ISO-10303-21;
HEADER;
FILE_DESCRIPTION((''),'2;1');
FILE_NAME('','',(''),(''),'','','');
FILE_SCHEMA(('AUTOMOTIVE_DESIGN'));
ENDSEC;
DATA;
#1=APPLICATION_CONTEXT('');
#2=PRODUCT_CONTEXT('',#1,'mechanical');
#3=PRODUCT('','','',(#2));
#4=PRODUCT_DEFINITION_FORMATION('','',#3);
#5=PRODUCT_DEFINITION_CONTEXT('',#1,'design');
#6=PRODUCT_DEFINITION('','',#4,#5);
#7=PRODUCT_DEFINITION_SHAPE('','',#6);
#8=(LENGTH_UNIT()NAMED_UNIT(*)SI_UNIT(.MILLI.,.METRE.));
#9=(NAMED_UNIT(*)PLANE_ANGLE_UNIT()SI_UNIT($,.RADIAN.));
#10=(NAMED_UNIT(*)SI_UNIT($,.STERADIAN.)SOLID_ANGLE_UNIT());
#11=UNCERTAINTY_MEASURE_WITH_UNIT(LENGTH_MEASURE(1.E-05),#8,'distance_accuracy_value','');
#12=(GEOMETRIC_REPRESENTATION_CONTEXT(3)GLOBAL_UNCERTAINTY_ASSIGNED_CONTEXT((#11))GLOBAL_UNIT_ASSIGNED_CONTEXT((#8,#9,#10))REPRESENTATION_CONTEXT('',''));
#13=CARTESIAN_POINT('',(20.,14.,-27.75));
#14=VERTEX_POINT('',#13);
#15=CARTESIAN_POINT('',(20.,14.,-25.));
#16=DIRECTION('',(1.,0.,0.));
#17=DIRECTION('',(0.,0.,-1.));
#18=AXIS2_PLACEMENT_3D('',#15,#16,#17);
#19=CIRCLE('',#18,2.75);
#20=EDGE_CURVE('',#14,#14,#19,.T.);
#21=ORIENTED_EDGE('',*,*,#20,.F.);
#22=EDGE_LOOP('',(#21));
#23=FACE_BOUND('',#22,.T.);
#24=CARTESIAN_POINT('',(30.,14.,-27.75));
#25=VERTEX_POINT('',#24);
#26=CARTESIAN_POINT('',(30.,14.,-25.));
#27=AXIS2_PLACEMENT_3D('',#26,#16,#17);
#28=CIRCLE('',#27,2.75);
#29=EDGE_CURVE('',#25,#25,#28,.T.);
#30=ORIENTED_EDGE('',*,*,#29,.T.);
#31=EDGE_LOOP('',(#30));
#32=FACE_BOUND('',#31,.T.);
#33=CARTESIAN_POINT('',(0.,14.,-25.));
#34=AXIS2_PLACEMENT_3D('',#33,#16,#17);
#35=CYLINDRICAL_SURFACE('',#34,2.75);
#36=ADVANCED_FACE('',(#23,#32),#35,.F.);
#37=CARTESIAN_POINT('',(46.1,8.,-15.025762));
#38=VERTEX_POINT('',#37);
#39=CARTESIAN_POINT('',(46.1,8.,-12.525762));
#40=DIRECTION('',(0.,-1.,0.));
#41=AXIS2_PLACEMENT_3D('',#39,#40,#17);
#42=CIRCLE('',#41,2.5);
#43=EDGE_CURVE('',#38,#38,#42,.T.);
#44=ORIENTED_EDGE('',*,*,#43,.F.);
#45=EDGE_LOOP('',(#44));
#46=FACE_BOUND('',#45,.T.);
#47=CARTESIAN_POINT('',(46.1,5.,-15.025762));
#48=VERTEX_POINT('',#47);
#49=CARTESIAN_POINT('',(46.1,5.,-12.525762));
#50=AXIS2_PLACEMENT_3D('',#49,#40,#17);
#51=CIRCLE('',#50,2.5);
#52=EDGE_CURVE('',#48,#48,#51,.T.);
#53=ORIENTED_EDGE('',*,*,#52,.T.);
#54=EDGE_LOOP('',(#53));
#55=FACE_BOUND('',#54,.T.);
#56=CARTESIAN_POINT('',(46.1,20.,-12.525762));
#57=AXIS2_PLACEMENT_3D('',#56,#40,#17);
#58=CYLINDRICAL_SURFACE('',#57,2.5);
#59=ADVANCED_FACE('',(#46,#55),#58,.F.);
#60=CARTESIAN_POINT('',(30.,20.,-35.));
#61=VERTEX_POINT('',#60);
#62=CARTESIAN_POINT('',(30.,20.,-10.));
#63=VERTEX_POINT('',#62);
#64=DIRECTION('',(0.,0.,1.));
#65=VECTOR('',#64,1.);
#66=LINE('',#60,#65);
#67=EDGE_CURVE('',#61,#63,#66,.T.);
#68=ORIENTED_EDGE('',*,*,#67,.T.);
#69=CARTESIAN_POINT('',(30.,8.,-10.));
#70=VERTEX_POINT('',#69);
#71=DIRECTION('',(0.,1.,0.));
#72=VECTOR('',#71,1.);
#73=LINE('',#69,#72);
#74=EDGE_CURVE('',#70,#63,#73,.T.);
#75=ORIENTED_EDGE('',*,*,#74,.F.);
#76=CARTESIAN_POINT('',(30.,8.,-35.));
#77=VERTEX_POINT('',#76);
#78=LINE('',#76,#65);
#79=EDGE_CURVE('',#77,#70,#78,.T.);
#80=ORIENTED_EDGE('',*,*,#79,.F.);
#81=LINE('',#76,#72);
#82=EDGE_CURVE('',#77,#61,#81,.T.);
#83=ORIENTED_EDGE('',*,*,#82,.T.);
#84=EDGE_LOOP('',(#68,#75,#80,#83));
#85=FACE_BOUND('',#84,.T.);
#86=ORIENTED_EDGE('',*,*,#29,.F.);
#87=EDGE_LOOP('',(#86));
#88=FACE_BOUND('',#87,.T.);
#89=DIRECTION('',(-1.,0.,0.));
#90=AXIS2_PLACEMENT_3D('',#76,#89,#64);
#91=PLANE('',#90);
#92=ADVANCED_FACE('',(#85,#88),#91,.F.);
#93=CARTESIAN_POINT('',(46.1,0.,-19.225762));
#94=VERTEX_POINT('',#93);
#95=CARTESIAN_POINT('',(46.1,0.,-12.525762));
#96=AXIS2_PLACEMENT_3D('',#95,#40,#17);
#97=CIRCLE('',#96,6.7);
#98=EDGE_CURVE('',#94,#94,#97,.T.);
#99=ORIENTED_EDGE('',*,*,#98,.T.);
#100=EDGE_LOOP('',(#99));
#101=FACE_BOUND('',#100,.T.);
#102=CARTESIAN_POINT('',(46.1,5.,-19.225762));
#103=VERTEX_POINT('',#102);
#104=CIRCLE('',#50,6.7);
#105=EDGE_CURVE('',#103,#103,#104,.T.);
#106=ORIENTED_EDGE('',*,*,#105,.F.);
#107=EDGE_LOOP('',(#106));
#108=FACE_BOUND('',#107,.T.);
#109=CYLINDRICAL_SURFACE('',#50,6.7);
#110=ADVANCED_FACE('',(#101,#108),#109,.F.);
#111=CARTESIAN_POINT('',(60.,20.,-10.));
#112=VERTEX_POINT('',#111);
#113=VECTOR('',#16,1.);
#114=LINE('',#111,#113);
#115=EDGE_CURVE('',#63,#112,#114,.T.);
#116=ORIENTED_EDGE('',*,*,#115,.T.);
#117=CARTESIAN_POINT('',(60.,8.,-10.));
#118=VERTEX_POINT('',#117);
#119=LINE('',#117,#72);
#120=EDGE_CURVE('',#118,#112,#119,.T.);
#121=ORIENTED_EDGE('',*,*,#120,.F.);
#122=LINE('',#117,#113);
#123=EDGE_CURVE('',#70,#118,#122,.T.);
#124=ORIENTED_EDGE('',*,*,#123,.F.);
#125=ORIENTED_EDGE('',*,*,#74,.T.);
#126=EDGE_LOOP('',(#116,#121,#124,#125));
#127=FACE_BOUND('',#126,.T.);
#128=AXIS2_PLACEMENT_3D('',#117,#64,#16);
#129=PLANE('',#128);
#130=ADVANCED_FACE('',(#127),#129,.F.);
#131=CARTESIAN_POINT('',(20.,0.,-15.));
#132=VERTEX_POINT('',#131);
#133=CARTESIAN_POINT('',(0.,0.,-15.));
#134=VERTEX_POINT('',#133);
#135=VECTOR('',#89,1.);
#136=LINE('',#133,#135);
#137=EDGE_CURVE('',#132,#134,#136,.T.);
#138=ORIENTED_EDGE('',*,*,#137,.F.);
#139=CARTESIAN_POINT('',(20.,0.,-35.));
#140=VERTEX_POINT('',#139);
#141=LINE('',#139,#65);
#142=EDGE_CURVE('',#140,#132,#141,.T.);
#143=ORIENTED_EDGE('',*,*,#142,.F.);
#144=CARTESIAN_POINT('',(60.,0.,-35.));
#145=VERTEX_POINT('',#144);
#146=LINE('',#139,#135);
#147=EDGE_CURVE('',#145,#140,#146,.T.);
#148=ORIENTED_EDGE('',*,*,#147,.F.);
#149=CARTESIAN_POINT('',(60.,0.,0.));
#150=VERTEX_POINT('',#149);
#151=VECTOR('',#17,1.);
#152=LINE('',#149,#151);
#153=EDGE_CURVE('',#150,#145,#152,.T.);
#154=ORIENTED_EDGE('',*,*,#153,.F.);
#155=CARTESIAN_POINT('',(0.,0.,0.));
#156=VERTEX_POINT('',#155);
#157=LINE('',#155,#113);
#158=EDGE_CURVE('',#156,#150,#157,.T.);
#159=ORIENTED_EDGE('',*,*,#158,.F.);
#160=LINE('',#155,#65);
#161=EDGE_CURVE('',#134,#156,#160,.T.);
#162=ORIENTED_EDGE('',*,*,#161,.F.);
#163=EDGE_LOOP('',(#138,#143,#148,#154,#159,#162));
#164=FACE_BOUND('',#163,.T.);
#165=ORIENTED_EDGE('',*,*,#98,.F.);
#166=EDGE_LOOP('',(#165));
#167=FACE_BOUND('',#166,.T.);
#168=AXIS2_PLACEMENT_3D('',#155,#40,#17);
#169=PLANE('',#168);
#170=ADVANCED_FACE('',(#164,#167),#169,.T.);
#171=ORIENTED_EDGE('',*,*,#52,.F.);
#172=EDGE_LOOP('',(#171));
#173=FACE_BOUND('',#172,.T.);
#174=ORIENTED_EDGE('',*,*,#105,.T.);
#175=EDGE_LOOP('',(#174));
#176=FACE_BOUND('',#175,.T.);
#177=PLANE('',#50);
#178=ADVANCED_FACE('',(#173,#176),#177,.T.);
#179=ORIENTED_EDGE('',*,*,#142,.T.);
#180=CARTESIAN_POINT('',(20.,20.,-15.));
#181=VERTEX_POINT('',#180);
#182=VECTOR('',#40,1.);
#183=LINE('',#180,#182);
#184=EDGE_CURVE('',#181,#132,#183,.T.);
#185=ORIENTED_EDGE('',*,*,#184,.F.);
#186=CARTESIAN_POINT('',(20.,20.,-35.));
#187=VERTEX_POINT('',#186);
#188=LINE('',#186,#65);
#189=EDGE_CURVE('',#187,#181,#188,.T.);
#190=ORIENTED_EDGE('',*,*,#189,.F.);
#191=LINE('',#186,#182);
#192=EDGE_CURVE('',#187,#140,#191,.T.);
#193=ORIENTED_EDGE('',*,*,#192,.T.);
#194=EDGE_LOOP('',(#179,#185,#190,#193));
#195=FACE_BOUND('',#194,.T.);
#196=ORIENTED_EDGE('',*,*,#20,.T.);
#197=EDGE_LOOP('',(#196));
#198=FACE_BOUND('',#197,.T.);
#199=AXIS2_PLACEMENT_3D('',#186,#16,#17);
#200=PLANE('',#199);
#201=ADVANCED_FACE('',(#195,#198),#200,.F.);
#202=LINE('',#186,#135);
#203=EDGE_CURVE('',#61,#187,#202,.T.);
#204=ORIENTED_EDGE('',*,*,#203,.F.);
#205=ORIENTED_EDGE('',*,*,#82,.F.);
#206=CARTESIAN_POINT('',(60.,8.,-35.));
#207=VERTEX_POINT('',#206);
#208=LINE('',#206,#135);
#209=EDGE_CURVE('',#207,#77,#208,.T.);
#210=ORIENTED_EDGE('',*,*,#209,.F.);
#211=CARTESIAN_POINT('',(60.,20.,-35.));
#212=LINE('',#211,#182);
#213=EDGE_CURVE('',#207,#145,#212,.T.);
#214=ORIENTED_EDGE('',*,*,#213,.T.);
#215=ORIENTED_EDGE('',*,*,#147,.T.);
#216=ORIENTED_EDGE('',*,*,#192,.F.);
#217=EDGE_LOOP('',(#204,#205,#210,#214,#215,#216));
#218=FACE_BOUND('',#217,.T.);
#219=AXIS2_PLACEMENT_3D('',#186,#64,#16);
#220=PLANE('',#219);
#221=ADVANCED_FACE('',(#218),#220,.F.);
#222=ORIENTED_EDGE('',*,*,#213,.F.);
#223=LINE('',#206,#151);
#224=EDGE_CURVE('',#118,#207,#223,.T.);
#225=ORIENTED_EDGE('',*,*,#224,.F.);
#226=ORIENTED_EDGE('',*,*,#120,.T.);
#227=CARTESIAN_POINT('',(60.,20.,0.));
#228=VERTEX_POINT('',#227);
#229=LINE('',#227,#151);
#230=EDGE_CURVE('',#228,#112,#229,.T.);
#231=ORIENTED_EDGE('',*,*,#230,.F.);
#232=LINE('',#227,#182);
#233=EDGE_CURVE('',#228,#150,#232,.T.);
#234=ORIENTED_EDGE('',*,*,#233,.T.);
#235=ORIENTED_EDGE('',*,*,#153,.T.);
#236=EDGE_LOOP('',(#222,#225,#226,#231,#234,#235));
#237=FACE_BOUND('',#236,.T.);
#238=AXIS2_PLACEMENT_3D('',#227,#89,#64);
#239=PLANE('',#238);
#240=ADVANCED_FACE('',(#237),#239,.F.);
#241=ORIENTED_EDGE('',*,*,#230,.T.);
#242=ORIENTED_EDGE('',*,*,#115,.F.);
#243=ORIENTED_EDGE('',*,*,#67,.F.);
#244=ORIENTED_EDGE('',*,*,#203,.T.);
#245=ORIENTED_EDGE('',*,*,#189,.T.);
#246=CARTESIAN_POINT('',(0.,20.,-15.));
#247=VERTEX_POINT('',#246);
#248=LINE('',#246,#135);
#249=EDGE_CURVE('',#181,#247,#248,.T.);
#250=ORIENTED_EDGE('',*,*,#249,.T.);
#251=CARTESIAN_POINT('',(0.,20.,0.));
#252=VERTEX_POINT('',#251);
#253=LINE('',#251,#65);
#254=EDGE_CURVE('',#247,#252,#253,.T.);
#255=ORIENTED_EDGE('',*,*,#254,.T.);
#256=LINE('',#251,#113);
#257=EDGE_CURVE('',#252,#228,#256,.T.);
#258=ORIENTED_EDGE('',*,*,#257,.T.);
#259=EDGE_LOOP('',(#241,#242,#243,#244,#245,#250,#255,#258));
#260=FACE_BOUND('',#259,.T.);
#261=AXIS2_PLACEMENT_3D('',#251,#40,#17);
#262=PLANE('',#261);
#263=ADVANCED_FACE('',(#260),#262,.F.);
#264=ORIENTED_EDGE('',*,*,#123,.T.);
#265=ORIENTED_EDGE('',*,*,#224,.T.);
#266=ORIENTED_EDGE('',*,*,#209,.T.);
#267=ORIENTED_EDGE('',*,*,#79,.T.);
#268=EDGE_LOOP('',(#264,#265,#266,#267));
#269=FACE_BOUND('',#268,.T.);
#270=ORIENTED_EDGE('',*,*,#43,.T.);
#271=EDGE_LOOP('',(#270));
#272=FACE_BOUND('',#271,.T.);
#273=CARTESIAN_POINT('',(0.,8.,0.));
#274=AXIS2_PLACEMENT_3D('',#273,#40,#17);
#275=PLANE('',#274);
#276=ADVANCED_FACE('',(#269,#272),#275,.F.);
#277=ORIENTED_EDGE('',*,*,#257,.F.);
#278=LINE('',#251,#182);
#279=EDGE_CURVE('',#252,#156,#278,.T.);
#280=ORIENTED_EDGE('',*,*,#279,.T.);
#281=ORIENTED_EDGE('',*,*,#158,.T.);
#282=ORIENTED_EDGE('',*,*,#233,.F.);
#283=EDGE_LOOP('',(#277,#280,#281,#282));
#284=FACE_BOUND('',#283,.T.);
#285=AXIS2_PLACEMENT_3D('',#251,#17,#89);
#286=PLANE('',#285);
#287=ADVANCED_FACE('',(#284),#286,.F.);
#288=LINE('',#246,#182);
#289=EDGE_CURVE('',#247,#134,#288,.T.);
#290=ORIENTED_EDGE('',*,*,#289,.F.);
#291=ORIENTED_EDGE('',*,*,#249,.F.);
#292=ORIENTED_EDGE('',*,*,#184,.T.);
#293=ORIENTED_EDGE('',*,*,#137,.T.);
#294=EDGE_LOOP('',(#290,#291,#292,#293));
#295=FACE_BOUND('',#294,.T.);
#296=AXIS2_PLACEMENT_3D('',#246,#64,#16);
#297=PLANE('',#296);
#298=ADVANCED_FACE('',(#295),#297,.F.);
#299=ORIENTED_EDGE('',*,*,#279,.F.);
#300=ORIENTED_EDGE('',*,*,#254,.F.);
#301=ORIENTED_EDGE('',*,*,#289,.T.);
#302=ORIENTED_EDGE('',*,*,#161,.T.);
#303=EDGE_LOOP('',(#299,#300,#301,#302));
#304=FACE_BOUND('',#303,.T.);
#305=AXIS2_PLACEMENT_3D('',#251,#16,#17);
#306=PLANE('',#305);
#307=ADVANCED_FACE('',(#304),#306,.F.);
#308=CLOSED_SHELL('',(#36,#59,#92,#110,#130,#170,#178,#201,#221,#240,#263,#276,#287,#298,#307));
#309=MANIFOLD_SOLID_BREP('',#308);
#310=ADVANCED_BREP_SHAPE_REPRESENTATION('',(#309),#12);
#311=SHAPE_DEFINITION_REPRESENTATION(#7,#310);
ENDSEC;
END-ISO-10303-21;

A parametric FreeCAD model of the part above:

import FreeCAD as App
import Part
import Sketcher
from FreeCAD import Vector
Q = App.Units.Quantity


def add_polygon(sketch, points):
    """Adds a closed chain of lines whose ends are joined by coincident constraints."""
    first, n = sketch.GeometryCount, len(points)
    for a, b in zip(points, points[1:] + points[:1]):
        sketch.addGeometry(Part.LineSegment(App.Vector(*a, 0), App.Vector(*b, 0)), False)
    for i in range(n):
        sketch.addConstraint(Sketcher.Constraint("Coincident", first + i, 2, first + (i + 1) % n, 1))

doc = App.newDocument("Part")
body = doc.addObject("PartDesign::Body", "Body")

# Sketch on XZ plane
sketch1 = body.newObject("Sketcher::SketchObject", "Sketch")
sketch1.AttachmentSupport = (doc.getObject("XZ_Plane"), [""])
sketch1.MapMode = "FlatFace"
add_polygon(sketch1, [(0, 0), (60, 0), (60, -35), (20, -35), (20, -15), (0, -15)])  # lines 0-5
sketch1.addConstraint(Sketcher.Constraint("Horizontal", 0))
sketch1.addConstraint(Sketcher.Constraint("Vertical", 1))
sketch1.addConstraint(Sketcher.Constraint("Horizontal", 2))
sketch1.addConstraint(Sketcher.Constraint("Vertical", 3))
sketch1.addConstraint(Sketcher.Constraint("Horizontal", 4))
sketch1.addConstraint(Sketcher.Constraint("Vertical", 5))
sketch1.addConstraint(Sketcher.Constraint("Coincident", 5, 2, -1, 1))
sketch1.addConstraint(Sketcher.Constraint("Equal", 4, 3))
sketch1.addConstraint(Sketcher.Constraint("DistanceX", 0, 1, 0, 2, Q("60 mm")))
sketch1.addConstraint(Sketcher.Constraint("DistanceX", 2, 2, 2, 1, Q("40 mm")))
sketch1.addConstraint(Sketcher.Constraint("DistanceY", 1, 2, 1, 1, Q("35 mm")))
pad1 = body.newObject("PartDesign::Pad", "Pad")
pad1.Profile = sketch1
pad1.Length = 20
pad1.Reversed = True

# Sketch on XZ plane
sketch2 = body.newObject("Sketcher::SketchObject", "Sketch001")
sketch2.AttachmentSupport = (doc.getObject("XZ_Plane"), [""])
sketch2.MapMode = "FlatFace"
sketch2.AttachmentOffset = App.Placement(Vector(0, 0, -20), App.Rotation())
add_polygon(sketch2, [(30, -35), (30, -10), (60, -10), (60, -35)])  # lines 0-3
sketch2.addConstraint(Sketcher.Constraint("Vertical", 0))
sketch2.addConstraint(Sketcher.Constraint("Horizontal", 1))
sketch2.addConstraint(Sketcher.Constraint("Vertical", 2))
sketch2.addConstraint(Sketcher.Constraint("Horizontal", 3))
sketch2.addConstraint(Sketcher.Constraint("DistanceX", 1, 1, 1, 2, Q("30 mm")))
sketch2.addConstraint(Sketcher.Constraint("DistanceY", 0, 1, 0, 2, Q("25 mm")))
sketch2.addConstraint(Sketcher.Constraint("DistanceX", -1, 1, 0, 2, Q("30 mm")))
sketch2.addConstraint(Sketcher.Constraint("DistanceY", 0, 2, -1, 1, Q("10 mm")))
pocket1 = body.newObject("PartDesign::Pocket", "Pocket")
pocket1.Profile = sketch2
pocket1.Length = 12
pocket1.Reversed = True

# Sketch on YZ plane
sketch3 = body.newObject("Sketcher::SketchObject", "Sketch002")
sketch3.AttachmentSupport = (doc.getObject("YZ_Plane"), [""])
sketch3.MapMode = "FlatFace"
sketch3.AttachmentOffset = App.Placement(Vector(0, 0, 30), App.Rotation())
sketch3.addGeometry(Part.Circle(Vector(14, -25, 0), Vector(0, 0, 1), 2.75), False)
sketch3.addConstraint(Sketcher.Constraint("Diameter", 0, Q("5.5 mm")))
sketch3.addConstraint(Sketcher.Constraint("DistanceX", -1, 1, 0, 3, Q("14 mm")))
sketch3.addConstraint(Sketcher.Constraint("DistanceY", 0, 3, -1, 1, Q("25 mm")))
pocket2 = body.newObject("PartDesign::Pocket", "Pocket001")
pocket2.Profile = sketch3
pocket2.Type = "ThroughAll"

# Sketch on XZ plane
sketch4 = body.newObject("Sketcher::SketchObject", "Sketch003")
sketch4.AttachmentSupport = (doc.getObject("XZ_Plane"), [""])
sketch4.MapMode = "FlatFace"
sketch4.addGeometry(Part.Circle(Vector(46.1, -12.525762, 0), Vector(0, 0, 1), 6.7), False)
sketch4.addConstraint(Sketcher.Constraint("Diameter", 0, Q("13.4 mm")))
sketch4.addConstraint(Sketcher.Constraint("DistanceX", -1, 1, 0, 3, Q("46.1 mm")))
sketch4.addConstraint(Sketcher.Constraint("DistanceY", 0, 3, -1, 1, Q("12.525762 mm")))
pocket3 = body.newObject("PartDesign::Pocket", "Pocket002")
pocket3.Profile = sketch4
pocket3.Length = 5

# Sketch on XZ plane
sketch5 = body.newObject("Sketcher::SketchObject", "Sketch004")
sketch5.AttachmentSupport = (doc.getObject("XZ_Plane"), [""])
sketch5.MapMode = "FlatFace"
sketch5.AttachmentOffset = App.Placement(Vector(0, 0, -5), App.Rotation())
sketch5.addGeometry(Part.Circle(Vector(46.1, -12.525762, 0), Vector(0, 0, 1), 2.5), False)
sketch5.addConstraint(Sketcher.Constraint("Diameter", 0, Q("5 mm")))
sketch5.addConstraint(Sketcher.Constraint("DistanceX", -1, 1, 0, 3, Q("46.1 mm")))
sketch5.addConstraint(Sketcher.Constraint("DistanceY", 0, 3, -1, 1, Q("12.525762 mm")))
pocket4 = body.newObject("PartDesign::Pocket", "Pocket003")
pocket4.Profile = sketch5
pocket4.Type = "ThroughAll"

doc.recompute()
